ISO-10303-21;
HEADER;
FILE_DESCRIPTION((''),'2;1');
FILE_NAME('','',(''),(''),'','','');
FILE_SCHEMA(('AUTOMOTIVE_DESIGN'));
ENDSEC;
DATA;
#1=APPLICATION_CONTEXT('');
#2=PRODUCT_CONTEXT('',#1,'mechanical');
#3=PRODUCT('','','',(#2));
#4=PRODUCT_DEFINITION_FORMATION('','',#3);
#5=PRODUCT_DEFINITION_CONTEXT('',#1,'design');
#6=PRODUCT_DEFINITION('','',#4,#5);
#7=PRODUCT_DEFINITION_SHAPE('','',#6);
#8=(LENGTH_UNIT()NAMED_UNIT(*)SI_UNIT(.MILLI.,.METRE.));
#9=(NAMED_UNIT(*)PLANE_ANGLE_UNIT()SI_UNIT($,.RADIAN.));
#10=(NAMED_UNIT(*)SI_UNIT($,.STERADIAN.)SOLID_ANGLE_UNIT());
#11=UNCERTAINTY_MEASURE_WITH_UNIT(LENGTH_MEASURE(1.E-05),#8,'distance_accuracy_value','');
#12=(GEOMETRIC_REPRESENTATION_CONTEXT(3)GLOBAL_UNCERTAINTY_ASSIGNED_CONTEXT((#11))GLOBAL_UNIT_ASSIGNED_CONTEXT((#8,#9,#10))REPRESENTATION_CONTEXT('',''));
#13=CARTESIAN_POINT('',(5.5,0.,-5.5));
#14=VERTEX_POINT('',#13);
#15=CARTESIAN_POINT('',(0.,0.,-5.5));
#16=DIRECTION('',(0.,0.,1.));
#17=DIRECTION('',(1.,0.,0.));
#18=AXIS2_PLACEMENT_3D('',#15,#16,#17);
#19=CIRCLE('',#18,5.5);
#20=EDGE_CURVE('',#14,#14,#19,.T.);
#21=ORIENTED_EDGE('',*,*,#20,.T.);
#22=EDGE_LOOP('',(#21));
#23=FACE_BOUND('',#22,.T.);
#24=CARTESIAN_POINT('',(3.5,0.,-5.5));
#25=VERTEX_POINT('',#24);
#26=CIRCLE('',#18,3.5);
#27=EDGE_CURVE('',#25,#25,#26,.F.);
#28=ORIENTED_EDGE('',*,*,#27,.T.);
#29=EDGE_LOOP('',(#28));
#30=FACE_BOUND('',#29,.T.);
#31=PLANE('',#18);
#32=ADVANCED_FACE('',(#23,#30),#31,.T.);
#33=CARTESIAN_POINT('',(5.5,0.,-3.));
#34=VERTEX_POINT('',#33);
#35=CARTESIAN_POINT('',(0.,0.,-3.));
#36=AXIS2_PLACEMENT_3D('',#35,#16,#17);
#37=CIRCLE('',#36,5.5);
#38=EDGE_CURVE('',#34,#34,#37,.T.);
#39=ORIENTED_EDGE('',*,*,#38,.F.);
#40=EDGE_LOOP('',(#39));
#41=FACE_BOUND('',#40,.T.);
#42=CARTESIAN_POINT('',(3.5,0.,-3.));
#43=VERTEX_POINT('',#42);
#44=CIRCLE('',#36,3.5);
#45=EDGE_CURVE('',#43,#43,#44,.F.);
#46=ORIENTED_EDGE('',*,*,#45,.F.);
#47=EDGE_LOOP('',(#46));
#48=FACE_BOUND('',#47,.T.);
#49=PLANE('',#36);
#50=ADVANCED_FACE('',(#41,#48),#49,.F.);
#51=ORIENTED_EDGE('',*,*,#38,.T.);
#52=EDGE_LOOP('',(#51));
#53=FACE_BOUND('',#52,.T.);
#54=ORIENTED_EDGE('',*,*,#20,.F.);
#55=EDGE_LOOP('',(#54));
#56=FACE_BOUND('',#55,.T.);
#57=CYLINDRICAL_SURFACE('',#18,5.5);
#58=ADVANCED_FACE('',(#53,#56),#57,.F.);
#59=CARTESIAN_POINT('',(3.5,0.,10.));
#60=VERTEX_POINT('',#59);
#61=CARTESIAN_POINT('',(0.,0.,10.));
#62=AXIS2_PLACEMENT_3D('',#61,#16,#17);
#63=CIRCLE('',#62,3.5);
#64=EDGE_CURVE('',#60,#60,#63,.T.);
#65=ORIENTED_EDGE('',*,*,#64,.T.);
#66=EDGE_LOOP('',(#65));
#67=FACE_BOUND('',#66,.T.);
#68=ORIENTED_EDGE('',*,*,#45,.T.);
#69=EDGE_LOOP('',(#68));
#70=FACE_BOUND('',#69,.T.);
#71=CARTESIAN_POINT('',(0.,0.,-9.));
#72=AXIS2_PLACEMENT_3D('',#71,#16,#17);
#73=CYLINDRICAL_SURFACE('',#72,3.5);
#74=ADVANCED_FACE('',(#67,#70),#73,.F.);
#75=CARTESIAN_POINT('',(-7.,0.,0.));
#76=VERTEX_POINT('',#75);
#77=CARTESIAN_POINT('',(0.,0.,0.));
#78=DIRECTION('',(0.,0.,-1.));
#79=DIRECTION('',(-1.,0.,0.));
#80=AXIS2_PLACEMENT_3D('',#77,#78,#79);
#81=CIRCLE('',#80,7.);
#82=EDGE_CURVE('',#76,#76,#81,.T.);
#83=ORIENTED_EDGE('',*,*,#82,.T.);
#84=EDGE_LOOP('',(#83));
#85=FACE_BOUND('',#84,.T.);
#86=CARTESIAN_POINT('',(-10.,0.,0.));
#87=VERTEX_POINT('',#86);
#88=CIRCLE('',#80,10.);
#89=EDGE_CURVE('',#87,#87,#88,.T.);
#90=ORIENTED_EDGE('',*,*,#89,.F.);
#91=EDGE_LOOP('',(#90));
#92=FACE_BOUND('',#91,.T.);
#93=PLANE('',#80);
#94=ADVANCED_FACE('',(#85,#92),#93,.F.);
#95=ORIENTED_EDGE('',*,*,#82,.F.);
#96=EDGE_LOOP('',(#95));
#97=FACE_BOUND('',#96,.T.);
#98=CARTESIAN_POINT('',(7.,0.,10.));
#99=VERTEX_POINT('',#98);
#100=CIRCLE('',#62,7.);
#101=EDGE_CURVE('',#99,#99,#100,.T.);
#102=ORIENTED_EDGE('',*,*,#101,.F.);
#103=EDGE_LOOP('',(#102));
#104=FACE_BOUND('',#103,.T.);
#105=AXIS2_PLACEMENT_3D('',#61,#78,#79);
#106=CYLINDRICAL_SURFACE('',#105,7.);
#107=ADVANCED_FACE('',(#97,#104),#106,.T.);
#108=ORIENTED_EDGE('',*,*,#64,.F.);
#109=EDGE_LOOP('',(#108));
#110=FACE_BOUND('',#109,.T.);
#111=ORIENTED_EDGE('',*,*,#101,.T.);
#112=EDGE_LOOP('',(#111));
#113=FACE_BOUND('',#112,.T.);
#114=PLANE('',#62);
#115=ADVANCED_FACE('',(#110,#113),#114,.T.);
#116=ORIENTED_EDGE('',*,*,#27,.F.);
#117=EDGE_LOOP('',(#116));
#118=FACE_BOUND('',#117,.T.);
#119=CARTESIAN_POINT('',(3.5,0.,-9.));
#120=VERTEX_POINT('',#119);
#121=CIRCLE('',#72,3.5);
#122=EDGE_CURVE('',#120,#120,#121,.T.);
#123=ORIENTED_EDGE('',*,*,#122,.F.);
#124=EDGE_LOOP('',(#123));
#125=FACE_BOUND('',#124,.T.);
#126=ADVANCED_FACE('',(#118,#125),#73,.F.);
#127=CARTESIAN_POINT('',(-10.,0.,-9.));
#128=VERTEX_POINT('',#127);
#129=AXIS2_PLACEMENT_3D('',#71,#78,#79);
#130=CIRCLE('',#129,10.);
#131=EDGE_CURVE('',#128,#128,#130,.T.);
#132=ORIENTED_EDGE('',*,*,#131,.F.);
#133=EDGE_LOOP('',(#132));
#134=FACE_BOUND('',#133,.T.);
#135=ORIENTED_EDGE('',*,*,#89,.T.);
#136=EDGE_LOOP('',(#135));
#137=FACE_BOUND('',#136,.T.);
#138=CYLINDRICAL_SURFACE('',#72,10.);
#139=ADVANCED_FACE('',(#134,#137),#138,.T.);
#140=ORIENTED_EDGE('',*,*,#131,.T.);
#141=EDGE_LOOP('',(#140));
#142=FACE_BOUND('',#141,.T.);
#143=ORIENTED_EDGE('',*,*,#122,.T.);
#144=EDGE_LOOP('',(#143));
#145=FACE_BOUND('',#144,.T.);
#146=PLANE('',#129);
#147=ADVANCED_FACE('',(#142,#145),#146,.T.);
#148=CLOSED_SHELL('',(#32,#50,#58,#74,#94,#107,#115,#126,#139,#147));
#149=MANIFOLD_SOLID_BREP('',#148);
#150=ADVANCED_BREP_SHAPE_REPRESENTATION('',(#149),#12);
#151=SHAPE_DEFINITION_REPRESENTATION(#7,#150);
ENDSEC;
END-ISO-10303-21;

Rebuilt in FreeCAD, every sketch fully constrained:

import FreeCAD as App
import Part
import Sketcher
from FreeCAD import Vector
Q = App.Units.Quantity

doc = App.newDocument("Part")
params = doc.addObject("Spreadsheet::Sheet", "Params")
for row, (alias, value) in enumerate([
    ("sketch1_diameter", "14 mm"),
    ("pad1_length", "10 mm"),
    ("sketch2_diameter", "20 mm"),
    ("pad2_length", "9 mm"),
    ("sketch3_diameter", "7 mm"),
    ("sketch4_diameter", "11 mm"),
    ("pocket2_length", "2.5 mm"),
], start=1):
    params.set(f"A{row}", alias)
    params.set(f"B{row}", "=" + value)
    params.setAlias(f"B{row}", alias)

body = doc.addObject("PartDesign::Body", "Body")

# Sketch on XY plane
sketch1 = doc.addObject("Sketcher::SketchObject", "Sketch")
body.addObject(sketch1)
sketch1.AttachmentSupport = (doc.XY_Plane, [""])
sketch1.MapMode = "FlatFace"
sketch1.addGeometry(Part.Circle(Vector(0, 0, 0), Vector(0, 0, 1), 7), False)
sketch1.addConstraint([
    Sketcher.Constraint("Coincident", 0, 3, -1, 1),
    Sketcher.Constraint("Diameter", 0, Q("14 mm")),
])
sketch1.setExpression("Constraints[1]", "Params.sketch1_diameter")
pad1 = doc.addObject("PartDesign::Pad", "Pad")
body.addObject(pad1)
pad1.Profile = sketch1
pad1.setExpression("Length", "Params.pad1_length")

# Sketch on XY plane
sketch2 = doc.addObject("Sketcher::SketchObject", "Sketch001")
body.addObject(sketch2)
sketch2.AttachmentSupport = (doc.XY_Plane, [""])
sketch2.MapMode = "FlatFace"
sketch2.addGeometry(Part.Circle(Vector(0, 0, 0), Vector(0, 0, 1), 10), False)
sketch2.addConstraint([
    Sketcher.Constraint("Coincident", 0, 3, -1, 1),
    Sketcher.Constraint("Diameter", 0, Q("20 mm")),
])
sketch2.setExpression("Constraints[1]", "Params.sketch2_diameter")
pad2 = doc.addObject("PartDesign::Pad", "Pad001")
body.addObject(pad2)
pad2.Profile = sketch2
pad2.setExpression("Length", "Params.pad2_length")
pad2.Reversed = True

# Sketch on XY plane
sketch3 = doc.addObject("Sketcher::SketchObject", "Sketch002")
body.addObject(sketch3)
sketch3.AttachmentSupport = (doc.XY_Plane, [""])
sketch3.MapMode = "FlatFace"
sketch3.AttachmentOffset = App.Placement(Vector(0, 0, 10), App.Rotation())
sketch3.addGeometry(Part.Circle(Vector(0, 0, 0), Vector(0, 0, 1), 3.5), False)
sketch3.addConstraint([
    Sketcher.Constraint("Coincident", 0, 3, -1, 1),
    Sketcher.Constraint("Diameter", 0, Q("7 mm")),
])
sketch3.setExpression("Constraints[1]", "Params.sketch3_diameter")
pocket1 = doc.addObject("PartDesign::Pocket", "Pocket")
body.addObject(pocket1)
pocket1.Profile = sketch3
pocket1.Type = "ThroughAll"

# Sketch on XY plane
sketch4 = doc.addObject("Sketcher::SketchObject", "Sketch003")
body.addObject(sketch4)
sketch4.AttachmentSupport = (doc.XY_Plane, [""])
sketch4.MapMode = "FlatFace"
sketch4.AttachmentOffset = App.Placement(Vector(0, 0, -3), App.Rotation())
sketch4.addGeometry(Part.Circle(Vector(0, 0, 0), Vector(0, 0, 1), 6), False)
sketch4.addConstraint([
    Sketcher.Constraint("Coincident", 0, 3, -1, 1),
    Sketcher.Constraint("Diameter", 0, Q("11 mm")),
])
sketch4.setExpression("Constraints[1]", "Params.sketch4_diameter")
pocket2 = doc.addObject("PartDesign::Pocket", "Pocket001")
body.addObject(pocket2)
pocket2.Profile = sketch4
pocket2.setExpression("Length", "Params.pocket2_length")

doc.recompute()
